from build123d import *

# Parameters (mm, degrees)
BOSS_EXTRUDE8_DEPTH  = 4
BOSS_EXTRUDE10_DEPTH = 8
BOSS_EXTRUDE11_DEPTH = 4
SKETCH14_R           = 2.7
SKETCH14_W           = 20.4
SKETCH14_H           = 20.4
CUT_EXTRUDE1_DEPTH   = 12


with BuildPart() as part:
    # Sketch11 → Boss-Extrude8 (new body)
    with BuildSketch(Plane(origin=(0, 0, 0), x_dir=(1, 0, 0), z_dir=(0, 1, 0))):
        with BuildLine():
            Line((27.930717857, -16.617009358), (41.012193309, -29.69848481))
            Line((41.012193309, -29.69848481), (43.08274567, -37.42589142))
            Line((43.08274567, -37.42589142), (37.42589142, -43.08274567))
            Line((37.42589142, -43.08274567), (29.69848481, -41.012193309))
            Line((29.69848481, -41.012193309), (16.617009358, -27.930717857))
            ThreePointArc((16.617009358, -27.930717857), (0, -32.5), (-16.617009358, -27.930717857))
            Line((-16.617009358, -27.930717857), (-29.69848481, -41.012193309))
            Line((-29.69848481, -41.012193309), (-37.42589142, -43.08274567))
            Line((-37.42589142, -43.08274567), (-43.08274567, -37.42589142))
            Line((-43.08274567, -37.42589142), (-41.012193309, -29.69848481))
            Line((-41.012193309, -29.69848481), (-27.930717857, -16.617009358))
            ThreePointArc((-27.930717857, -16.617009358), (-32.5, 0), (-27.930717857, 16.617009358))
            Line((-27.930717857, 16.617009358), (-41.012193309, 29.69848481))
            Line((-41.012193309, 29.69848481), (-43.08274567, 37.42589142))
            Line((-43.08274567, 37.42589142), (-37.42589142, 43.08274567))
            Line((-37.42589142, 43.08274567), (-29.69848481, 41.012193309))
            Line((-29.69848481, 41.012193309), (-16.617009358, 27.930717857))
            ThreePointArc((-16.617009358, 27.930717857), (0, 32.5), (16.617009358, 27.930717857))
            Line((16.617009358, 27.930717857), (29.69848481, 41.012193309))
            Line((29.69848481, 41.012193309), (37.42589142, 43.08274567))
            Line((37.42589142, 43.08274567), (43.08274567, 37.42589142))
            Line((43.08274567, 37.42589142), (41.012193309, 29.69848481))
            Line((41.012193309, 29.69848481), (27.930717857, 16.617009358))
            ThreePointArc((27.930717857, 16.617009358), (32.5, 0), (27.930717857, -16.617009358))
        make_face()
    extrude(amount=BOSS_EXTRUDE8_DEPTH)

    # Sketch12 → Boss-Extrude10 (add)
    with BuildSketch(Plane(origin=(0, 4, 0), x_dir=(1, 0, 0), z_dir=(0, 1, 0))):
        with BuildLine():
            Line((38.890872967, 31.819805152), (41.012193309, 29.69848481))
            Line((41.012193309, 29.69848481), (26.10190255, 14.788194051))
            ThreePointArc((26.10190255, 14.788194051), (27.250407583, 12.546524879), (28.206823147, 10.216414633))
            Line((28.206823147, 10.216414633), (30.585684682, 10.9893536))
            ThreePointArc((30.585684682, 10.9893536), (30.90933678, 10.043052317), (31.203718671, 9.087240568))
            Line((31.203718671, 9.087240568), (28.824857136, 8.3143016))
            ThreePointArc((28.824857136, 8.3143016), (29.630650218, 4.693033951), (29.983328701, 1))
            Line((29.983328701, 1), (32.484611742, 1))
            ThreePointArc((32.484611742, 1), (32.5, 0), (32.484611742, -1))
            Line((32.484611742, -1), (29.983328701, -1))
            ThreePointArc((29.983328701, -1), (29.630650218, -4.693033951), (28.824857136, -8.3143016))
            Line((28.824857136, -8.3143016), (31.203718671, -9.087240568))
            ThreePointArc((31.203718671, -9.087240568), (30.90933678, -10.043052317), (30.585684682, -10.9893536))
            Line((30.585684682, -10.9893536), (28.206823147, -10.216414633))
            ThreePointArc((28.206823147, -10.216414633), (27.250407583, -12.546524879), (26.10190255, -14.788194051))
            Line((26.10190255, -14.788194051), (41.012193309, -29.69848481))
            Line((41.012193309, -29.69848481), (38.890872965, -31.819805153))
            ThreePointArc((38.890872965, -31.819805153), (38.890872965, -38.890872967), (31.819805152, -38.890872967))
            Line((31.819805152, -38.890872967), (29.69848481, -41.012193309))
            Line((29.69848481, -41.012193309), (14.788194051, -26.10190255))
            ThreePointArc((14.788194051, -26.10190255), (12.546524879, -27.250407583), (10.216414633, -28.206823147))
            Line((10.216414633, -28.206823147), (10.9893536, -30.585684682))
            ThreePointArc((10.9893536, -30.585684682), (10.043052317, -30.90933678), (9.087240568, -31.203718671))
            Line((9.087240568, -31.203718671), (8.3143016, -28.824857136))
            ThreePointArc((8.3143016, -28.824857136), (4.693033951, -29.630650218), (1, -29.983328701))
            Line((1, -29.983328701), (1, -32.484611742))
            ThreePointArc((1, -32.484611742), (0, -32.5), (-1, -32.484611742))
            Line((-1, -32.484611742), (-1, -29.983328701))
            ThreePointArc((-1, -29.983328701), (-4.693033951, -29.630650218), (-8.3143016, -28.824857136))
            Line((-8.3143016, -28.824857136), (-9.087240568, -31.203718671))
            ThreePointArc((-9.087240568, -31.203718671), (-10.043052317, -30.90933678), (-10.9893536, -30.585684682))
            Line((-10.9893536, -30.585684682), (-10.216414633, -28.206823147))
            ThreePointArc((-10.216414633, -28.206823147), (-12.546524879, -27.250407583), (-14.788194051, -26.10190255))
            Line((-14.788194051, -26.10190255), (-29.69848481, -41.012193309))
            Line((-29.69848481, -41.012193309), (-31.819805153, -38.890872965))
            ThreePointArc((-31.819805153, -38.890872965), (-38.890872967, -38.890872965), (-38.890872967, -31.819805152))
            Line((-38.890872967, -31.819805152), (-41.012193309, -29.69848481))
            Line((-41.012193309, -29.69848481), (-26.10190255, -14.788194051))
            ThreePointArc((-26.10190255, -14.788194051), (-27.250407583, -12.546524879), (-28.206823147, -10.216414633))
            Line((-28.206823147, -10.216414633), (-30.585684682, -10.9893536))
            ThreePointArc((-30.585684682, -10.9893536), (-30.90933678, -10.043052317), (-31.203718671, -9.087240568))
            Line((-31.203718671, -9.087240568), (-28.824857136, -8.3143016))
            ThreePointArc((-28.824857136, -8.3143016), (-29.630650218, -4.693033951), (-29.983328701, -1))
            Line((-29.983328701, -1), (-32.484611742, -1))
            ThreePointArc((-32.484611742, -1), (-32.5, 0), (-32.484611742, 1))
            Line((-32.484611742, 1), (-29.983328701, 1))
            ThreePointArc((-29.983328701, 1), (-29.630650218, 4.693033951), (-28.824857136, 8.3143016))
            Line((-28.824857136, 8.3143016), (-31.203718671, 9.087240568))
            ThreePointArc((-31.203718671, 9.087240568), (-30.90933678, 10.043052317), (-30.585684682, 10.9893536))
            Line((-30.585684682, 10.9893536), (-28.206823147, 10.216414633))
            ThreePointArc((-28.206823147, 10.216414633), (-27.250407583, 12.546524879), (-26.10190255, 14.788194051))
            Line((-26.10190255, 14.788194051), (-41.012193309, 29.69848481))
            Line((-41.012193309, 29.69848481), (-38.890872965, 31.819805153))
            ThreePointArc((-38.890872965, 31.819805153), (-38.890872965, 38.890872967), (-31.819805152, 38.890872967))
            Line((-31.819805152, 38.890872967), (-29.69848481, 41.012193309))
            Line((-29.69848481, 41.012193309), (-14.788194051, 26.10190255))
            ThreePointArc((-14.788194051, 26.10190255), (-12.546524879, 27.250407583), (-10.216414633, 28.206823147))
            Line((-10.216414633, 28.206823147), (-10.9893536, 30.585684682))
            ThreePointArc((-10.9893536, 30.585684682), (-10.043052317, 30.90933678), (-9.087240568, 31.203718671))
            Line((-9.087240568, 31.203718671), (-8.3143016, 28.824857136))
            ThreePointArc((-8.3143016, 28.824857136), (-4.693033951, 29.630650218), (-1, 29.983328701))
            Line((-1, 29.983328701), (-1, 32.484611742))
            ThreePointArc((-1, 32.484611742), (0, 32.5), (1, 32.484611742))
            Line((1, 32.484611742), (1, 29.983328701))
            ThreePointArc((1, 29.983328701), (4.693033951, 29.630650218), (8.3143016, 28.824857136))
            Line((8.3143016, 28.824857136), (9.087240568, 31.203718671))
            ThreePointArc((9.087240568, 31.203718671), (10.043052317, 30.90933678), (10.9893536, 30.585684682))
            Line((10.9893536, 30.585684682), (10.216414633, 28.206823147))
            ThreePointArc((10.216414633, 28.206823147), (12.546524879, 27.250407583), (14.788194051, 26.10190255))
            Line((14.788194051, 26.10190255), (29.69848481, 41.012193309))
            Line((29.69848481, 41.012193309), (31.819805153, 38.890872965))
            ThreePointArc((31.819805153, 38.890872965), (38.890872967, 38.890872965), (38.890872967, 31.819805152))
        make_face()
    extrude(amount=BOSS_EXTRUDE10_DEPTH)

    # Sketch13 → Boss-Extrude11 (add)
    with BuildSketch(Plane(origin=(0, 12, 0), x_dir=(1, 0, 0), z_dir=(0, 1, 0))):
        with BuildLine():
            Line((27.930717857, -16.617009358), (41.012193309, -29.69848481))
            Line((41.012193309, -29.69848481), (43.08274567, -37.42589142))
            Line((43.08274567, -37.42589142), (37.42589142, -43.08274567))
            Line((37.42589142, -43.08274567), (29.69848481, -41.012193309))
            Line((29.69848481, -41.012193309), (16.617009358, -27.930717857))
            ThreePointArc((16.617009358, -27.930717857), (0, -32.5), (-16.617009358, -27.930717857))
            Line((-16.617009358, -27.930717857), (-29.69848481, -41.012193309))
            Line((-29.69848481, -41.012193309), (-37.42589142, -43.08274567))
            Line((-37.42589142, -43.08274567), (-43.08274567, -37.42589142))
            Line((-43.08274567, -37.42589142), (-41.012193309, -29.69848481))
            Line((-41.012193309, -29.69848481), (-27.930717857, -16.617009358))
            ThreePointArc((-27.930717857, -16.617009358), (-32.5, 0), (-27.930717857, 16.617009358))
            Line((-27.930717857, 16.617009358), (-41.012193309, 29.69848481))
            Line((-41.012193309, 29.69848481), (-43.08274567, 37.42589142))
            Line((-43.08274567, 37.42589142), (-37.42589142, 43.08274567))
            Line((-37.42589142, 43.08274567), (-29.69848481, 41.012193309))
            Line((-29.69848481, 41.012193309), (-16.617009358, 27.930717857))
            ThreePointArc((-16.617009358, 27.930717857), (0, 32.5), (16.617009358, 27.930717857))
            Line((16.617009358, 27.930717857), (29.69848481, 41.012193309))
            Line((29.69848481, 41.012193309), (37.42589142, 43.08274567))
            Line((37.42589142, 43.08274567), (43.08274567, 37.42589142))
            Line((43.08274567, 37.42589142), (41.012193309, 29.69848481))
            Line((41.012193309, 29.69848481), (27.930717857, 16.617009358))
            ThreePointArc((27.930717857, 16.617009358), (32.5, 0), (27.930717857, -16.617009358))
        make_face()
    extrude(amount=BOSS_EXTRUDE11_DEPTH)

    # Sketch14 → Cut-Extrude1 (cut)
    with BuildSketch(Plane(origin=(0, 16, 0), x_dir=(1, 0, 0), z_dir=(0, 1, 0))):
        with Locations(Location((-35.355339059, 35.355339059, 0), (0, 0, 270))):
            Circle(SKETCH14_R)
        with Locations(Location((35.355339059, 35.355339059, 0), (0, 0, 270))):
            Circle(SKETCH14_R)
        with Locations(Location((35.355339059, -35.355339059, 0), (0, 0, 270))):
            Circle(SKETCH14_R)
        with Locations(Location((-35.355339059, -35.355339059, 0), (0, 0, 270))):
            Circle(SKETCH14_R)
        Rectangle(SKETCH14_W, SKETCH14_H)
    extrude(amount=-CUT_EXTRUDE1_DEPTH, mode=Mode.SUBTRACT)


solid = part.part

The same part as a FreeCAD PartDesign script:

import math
import FreeCAD as App
import Part
import Sketcher

V = App.Vector
Q = App.Units.Quantity


def add_polygon(sketch, points):
    """Adds a closed chain of lines whose ends are joined by coincident constraints."""
    first, n = sketch.GeometryCount, len(points)
    for a, b in zip(points, points[1:] + points[:1]):
        sketch.addGeometry(Part.LineSegment(App.Vector(*a, 0), App.Vector(*b, 0)), False)
    for i in range(n):
        sketch.addConstraint(Sketcher.Constraint("Coincident", first + i, 2, first + (i + 1) % n, 1))

doc = App.newDocument("Part")
body = doc.addObject("PartDesign::Body", "Body")

# Sketch on XZ plane
sketch1 = doc.addObject("Sketcher::SketchObject", "Sketch")
body.addObject(sketch1)
sketch1.AttachmentSupport = (doc.XZ_Plane, [""])
sketch1.MapMode = "FlatFace"
sketch1.addGeometry([
    Part.LineSegment(V(41, 30, 0), V(28, 17, 0)),  # 0
    Part.ArcOfCircle(Part.Circle(V(0, 0, 0), V(0, 0, 1), 33), math.radians(-31), math.radians(31)),  # 1
    Part.LineSegment(V(28, -17, 0), V(41, -30, 0)),  # 2
    Part.LineSegment(V(41, -30, 0), V(43, -37, 0)),  # 3
    Part.LineSegment(V(43, -37, 0), V(37, -43, 0)),  # 4
    Part.LineSegment(V(37, -43, 0), V(30, -41, 0)),  # 5
    Part.LineSegment(V(30, -41, 0), V(17, -28, 0)),  # 6
    Part.ArcOfCircle(Part.Circle(V(0, 0, 0), V(0, 0, 1), 33), math.radians(-121), math.radians(-59)),  # 7
    Part.LineSegment(V(-17, -28, 0), V(-30, -41, 0)),  # 8
    Part.LineSegment(V(-30, -41, 0), V(-37, -43, 0)),  # 9
    Part.LineSegment(V(-37, -43, 0), V(-43, -37, 0)),  # 10
    Part.LineSegment(V(-43, -37, 0), V(-41, -30, 0)),  # 11
    Part.LineSegment(V(-41, -30, 0), V(-28, -17, 0)),  # 12
    Part.ArcOfCircle(Part.Circle(V(0, 0, 0), V(0, 0, 1), 33), math.radians(149), math.radians(211)),  # 13
    Part.LineSegment(V(-28, 17, 0), V(-41, 30, 0)),  # 14
    Part.LineSegment(V(-41, 30, 0), V(-43, 37, 0)),  # 15
    Part.LineSegment(V(-43, 37, 0), V(-37, 43, 0)),  # 16
    Part.LineSegment(V(-37, 43, 0), V(-30, 41, 0)),  # 17
    Part.LineSegment(V(-30, 41, 0), V(-17, 28, 0)),  # 18
    Part.ArcOfCircle(Part.Circle(V(0, 0, 0), V(0, 0, 1), 33), math.radians(59), math.radians(121)),  # 19
    Part.LineSegment(V(17, 28, 0), V(30, 41, 0)),  # 20
    Part.LineSegment(V(30, 41, 0), V(37, 43, 0)),  # 21
    Part.LineSegment(V(37, 43, 0), V(43, 37, 0)),  # 22
    Part.LineSegment(V(43, 37, 0), V(41, 30, 0)),  # 23
], False)
sketch1.addConstraint([
    Sketcher.Constraint("Coincident", 0, 2, 1, 2),
    Sketcher.Constraint("Coincident", 1, 1, 2, 1),
    Sketcher.Constraint("Coincident", 2, 2, 3, 1),
    Sketcher.Constraint("Coincident", 3, 2, 4, 1),
    Sketcher.Constraint("Coincident", 4, 2, 5, 1),
    Sketcher.Constraint("Coincident", 5, 2, 6, 1),
    Sketcher.Constraint("Coincident", 6, 2, 7, 2),
    Sketcher.Constraint("Coincident", 7, 1, 8, 1),
    Sketcher.Constraint("Coincident", 8, 2, 9, 1),
    Sketcher.Constraint("Coincident", 9, 2, 10, 1),
    Sketcher.Constraint("Coincident", 10, 2, 11, 1),
    Sketcher.Constraint("Coincident", 11, 2, 12, 1),
    Sketcher.Constraint("Coincident", 12, 2, 13, 2),
    Sketcher.Constraint("Coincident", 13, 1, 14, 1),
    Sketcher.Constraint("Coincident", 14, 2, 15, 1),
    Sketcher.Constraint("Coincident", 15, 2, 16, 1),
    Sketcher.Constraint("Coincident", 16, 2, 17, 1),
    Sketcher.Constraint("Coincident", 17, 2, 18, 1),
    Sketcher.Constraint("Coincident", 18, 2, 19, 2),
    Sketcher.Constraint("Coincident", 19, 1, 20, 1),
    Sketcher.Constraint("Coincident", 20, 2, 21, 1),
    Sketcher.Constraint("Coincident", 21, 2, 22, 1),
    Sketcher.Constraint("Coincident", 22, 2, 23, 1),
    Sketcher.Constraint("Coincident", 23, 2, 0, 1),
    Sketcher.Constraint("Coincident", 1, 3, -1, 1),
    Sketcher.Constraint("Coincident", 7, 3, -1, 1),
    Sketcher.Constraint("Coincident", 13, 3, -1, 1),
    Sketcher.Constraint("Coincident", 19, 3, -1, 1),
    Sketcher.Constraint("Equal", 1, 7),
    Sketcher.Constraint("Equal", 7, 13),
    Sketcher.Constraint("Equal", 13, 19),
    Sketcher.Constraint("Symmetric", 2, 2, 14, 2, -1, 1),
    Sketcher.Constraint("Symmetric", 3, 2, 15, 2, -1, 1),
    Sketcher.Constraint("Symmetric", 4, 2, 16, 2, -1, 1),
    Sketcher.Constraint("Symmetric", 5, 2, 17, 2, -1, 1),
    Sketcher.Constraint("Symmetric", 8, 2, 20, 2, -1, 1),
    Sketcher.Constraint("Symmetric", 9, 2, 21, 2, -1, 1),
    Sketcher.Constraint("Symmetric", 10, 2, 22, 2, -1, 1),
    Sketcher.Constraint("Symmetric", 11, 2, 23, 2, -1, 1),
    Sketcher.Constraint("Symmetric", 5, 2, 8, 2, -2),
    Sketcher.Constraint("Symmetric", 4, 2, 9, 2, -2),
    Sketcher.Constraint("Symmetric", 3, 2, 10, 2, -2),
    Sketcher.Constraint("Symmetric", 2, 2, 11, 2, -2),
    Sketcher.Constraint("Perpendicular", 0, 2),
    Sketcher.Constraint("Perpendicular", 2, 4),
    Sketcher.Constraint("Perpendicular", 4, 6),
    Sketcher.Constraint("Perpendicular", 6, 8),
    Sketcher.Constraint("Perpendicular", 3, 9),
    Sketcher.Constraint("Perpendicular", 8, 10),
    Sketcher.Constraint("Perpendicular", 10, 12),
    Sketcher.Constraint("Perpendicular", 12, 14),
    Sketcher.Constraint("Perpendicular", 16, 18),
    Sketcher.Constraint("Perpendicular", 18, 20),
    Sketcher.Constraint("Equal", 3, 4),
    Sketcher.Constraint("Equal", 4, 5),
    Sketcher.Constraint("Equal", 2, 6),
    Sketcher.Constraint("Radius", 1, 32.5),
    Sketcher.Constraint("Angle", 3, Q("-75 deg")),
    Sketcher.Constraint("Distance", 3, 8.0),
    Sketcher.Constraint("Distance", 0, 18.5),
])
pad1 = doc.addObject("PartDesign::Pad", "Pad")
body.addObject(pad1)
pad1.Profile = sketch1
pad1.Length = 4
pad1.Reversed = True

# Sketch on XZ plane
sketch2 = doc.addObject("Sketcher::SketchObject", "Sketch001")
body.addObject(sketch2)
sketch2.AttachmentSupport = (doc.XZ_Plane, [""])
sketch2.MapMode = "FlatFace"
sketch2.AttachmentOffset = App.Placement(V(0, 0, -4), App.Rotation())
sketch2.addGeometry([
    Part.LineSegment(V(41, -29.7, 0), V(38.9, -31.8, 0)),  # 0
    Part.ArcOfCircle(Part.Circle(V(35.4, -35.4, 0), V(0, 0, 1), 5), math.radians(-135), math.radians(45)),  # 1
    Part.LineSegment(V(31.8, -38.9, 0), V(29.7, -41, 0)),  # 2
    Part.LineSegment(V(29.7, -41, 0), V(14.8, -26.1, 0)),  # 3
    Part.ArcOfCircle(Part.Circle(V(0, 0, 0), V(0, 0, 1), 30), math.radians(-70.09), math.radians(-60.47)),  # 4
    Part.LineSegment(V(10.2, -28.2, 0), V(11, -30.6, 0)),  # 5
    Part.ArcOfCircle(Part.Circle(V(0, 0, 0), V(0, 0, 1), 32.5), math.radians(-73.76), math.radians(-70.24)),  # 6
    Part.LineSegment(V(9.1, -31.2, 0), V(8.3, -28.8, 0)),  # 7
    Part.ArcOfCircle(Part.Circle(V(0, 0, 0), V(0, 0, 1), 30), math.radians(-88.09), math.radians(-73.91)),  # 8
    Part.LineSegment(V(1, -30, 0), V(1, -32.5, 0)),  # 9
    Part.ArcOfCircle(Part.Circle(V(0, 0, 0), V(0, 0, 1), 32.5), math.radians(-91.76), math.radians(-88.24)),  # 10
    Part.LineSegment(V(-1, -32.5, 0), V(-1, -30, 0)),  # 11
    Part.ArcOfCircle(Part.Circle(V(0, 0, 0), V(0, 0, 1), 30), math.radians(-106.09), math.radians(-91.91)),  # 12
    Part.LineSegment(V(-8.3, -28.8, 0), V(-9.1, -31.2, 0)),  # 13
    Part.ArcOfCircle(Part.Circle(V(0, 0, 0), V(0, 0, 1), 32.5), math.radians(-109.76), math.radians(-106.24)),  # 14
    Part.LineSegment(V(-11, -30.6, 0), V(-10.2, -28.2, 0)),  # 15
    Part.ArcOfCircle(Part.Circle(V(0, 0, 0), V(0, 0, 1), 30), math.radians(-119.53), math.radians(-109.91)),  # 16
    Part.LineSegment(V(-14.8, -26.1, 0), V(-29.7, -41, 0)),  # 17
    Part.LineSegment(V(-29.7, -41, 0), V(-31.8, -38.9, 0)),  # 18
    Part.ArcOfCircle(Part.Circle(V(-35.4, -35.4, 0), V(0, 0, 1), 5), math.radians(135), math.radians(315)),  # 19
    Part.LineSegment(V(-38.9, -31.8, 0), V(-41, -29.7, 0)),  # 20
    Part.LineSegment(V(-41, -29.7, 0), V(-26.1, -14.8, 0)),  # 21
    Part.ArcOfCircle(Part.Circle(V(0, 0, 0), V(0, 0, 1), 30), math.radians(-160.09), math.radians(-150.47)),  # 22
    Part.LineSegment(V(-28.2, -10.2, 0), V(-30.6, -11, 0)),  # 23
    Part.ArcOfCircle(Part.Circle(V(0, 0, 0), V(0, 0, 1), 32.5), math.radians(-163.76), math.radians(-160.24)),  # 24
    Part.LineSegment(V(-31.2, -9.1, 0), V(-28.8, -8.3, 0)),  # 25
    Part.ArcOfCircle(Part.Circle(V(0, 0, 0), V(0, 0, 1), 30), math.radians(-178.09), math.radians(-163.91)),  # 26
    Part.LineSegment(V(-30, -1, 0), V(-32.5, -1, 0)),  # 27
    Part.ArcOfCircle(Part.Circle(V(0, 0, 0), V(0, 0, 1), 32.5), math.radians(178.24), math.radians(181.76)),  # 28
    Part.LineSegment(V(-32.5, 1, 0), V(-30, 1, 0)),  # 29
    Part.ArcOfCircle(Part.Circle(V(0, 0, 0), V(0, 0, 1), 30), math.radians(163.91), math.radians(178.09)),  # 30
    Part.LineSegment(V(-28.8, 8.3, 0), V(-31.2, 9.1, 0)),  # 31
    Part.ArcOfCircle(Part.Circle(V(0, 0, 0), V(0, 0, 1), 32.5), math.radians(160.24), math.radians(163.76)),  # 32
    Part.LineSegment(V(-30.6, 11, 0), V(-28.2, 10.2, 0)),  # 33
    Part.ArcOfCircle(Part.Circle(V(0, 0, 0), V(0, 0, 1), 30), math.radians(150.47), math.radians(160.09)),  # 34
    Part.LineSegment(V(-26.1, 14.8, 0), V(-41, 29.7, 0)),  # 35
    Part.LineSegment(V(-41, 29.7, 0), V(-38.9, 31.8, 0)),  # 36
    Part.ArcOfCircle(Part.Circle(V(-35.4, 35.4, 0), V(0, 0, 1), 5), math.radians(45), math.radians(225)),  # 37
    Part.LineSegment(V(-31.8, 38.9, 0), V(-29.7, 41, 0)),  # 38
    Part.LineSegment(V(-29.7, 41, 0), V(-14.8, 26.1, 0)),  # 39
    Part.ArcOfCircle(Part.Circle(V(0, 0, 0), V(0, 0, 1), 30), math.radians(109.91), math.radians(119.53)),  # 40
    Part.LineSegment(V(-10.2, 28.2, 0), V(-11, 30.6, 0)),  # 41
    Part.ArcOfCircle(Part.Circle(V(0, 0, 0), V(0, 0, 1), 32.5), math.radians(106.24), math.radians(109.76)),  # 42
    Part.LineSegment(V(-9.1, 31.2, 0), V(-8.3, 28.8, 0)),  # 43
    Part.ArcOfCircle(Part.Circle(V(0, 0, 0), V(0, 0, 1), 30), math.radians(91.91), math.radians(106.09)),  # 44
    Part.LineSegment(V(-1, 30, 0), V(-1, 32.5, 0)),  # 45
    Part.ArcOfCircle(Part.Circle(V(0, 0, 0), V(0, 0, 1), 32.5), math.radians(88.24), math.radians(91.76)),  # 46
    Part.LineSegment(V(1, 32.5, 0), V(1, 30, 0)),  # 47
    Part.ArcOfCircle(Part.Circle(V(0, 0, 0), V(0, 0, 1), 30), math.radians(73.91), math.radians(88.09)),  # 48
    Part.LineSegment(V(8.3, 28.8, 0), V(9.1, 31.2, 0)),  # 49
    Part.ArcOfCircle(Part.Circle(V(0, 0, 0), V(0, 0, 1), 32.5), math.radians(70.24), math.radians(73.76)),  # 50
    Part.LineSegment(V(11, 30.6, 0), V(10.2, 28.2, 0)),  # 51
    Part.ArcOfCircle(Part.Circle(V(0, 0, 0), V(0, 0, 1), 30), math.radians(60.47), math.radians(70.09)),  # 52
    Part.LineSegment(V(14.8, 26.1, 0), V(29.7, 41, 0)),  # 53
    Part.LineSegment(V(29.7, 41, 0), V(31.8, 38.9, 0)),  # 54
    Part.ArcOfCircle(Part.Circle(V(35.4, 35.4, 0), V(0, 0, 1), 5), math.radians(-45), math.radians(135)),  # 55
    Part.LineSegment(V(38.9, 31.8, 0), V(41, 29.7, 0)),  # 56
    Part.LineSegment(V(41, 29.7, 0), V(26.1, 14.8, 0)),  # 57
    Part.ArcOfCircle(Part.Circle(V(0, 0, 0), V(0, 0, 1), 30), math.radians(19.91), math.radians(29.53)),  # 58
    Part.LineSegment(V(28.2, 10.2, 0), V(30.6, 11, 0)),  # 59
    Part.ArcOfCircle(Part.Circle(V(0, 0, 0), V(0, 0, 1), 32.5), math.radians(16.24), math.radians(19.76)),  # 60
    Part.LineSegment(V(31.2, 9.1, 0), V(28.8, 8.3, 0)),  # 61
    Part.ArcOfCircle(Part.Circle(V(0, 0, 0), V(0, 0, 1), 30), math.radians(1.91), math.radians(16.09)),  # 62
    Part.LineSegment(V(30, 1, 0), V(32.5, 1, 0)),  # 63
    Part.ArcOfCircle(Part.Circle(V(0, 0, 0), V(0, 0, 1), 32.5), math.radians(-1.76), math.radians(1.76)),  # 64
    Part.LineSegment(V(32.5, -1, 0), V(30, -1, 0)),  # 65
    Part.ArcOfCircle(Part.Circle(V(0, 0, 0), V(0, 0, 1), 30), math.radians(-16.09), math.radians(-1.91)),  # 66
    Part.LineSegment(V(28.8, -8.3, 0), V(31.2, -9.1, 0)),  # 67
    Part.ArcOfCircle(Part.Circle(V(0, 0, 0), V(0, 0, 1), 32.5), math.radians(-19.76), math.radians(-16.24)),  # 68
    Part.LineSegment(V(30.6, -11, 0), V(28.2, -10.2, 0)),  # 69
    Part.ArcOfCircle(Part.Circle(V(0, 0, 0), V(0, 0, 1), 30), math.radians(-29.53), math.radians(-19.91)),  # 70
    Part.LineSegment(V(26.1, -14.8, 0), V(41, -29.7, 0)),  # 71
], False)
sketch2.addConstraint([
    Sketcher.Constraint("Coincident", 0, 2, 1, 2),
    Sketcher.Constraint("Coincident", 1, 1, 2, 1),
    Sketcher.Constraint("Coincident", 2, 2, 3, 1),
    Sketcher.Constraint("Coincident", 3, 2, 4, 2),
    Sketcher.Constraint("Coincident", 4, 1, 5, 1),
    Sketcher.Constraint("Coincident", 5, 2, 6, 2),
    Sketcher.Constraint("Coincident", 6, 1, 7, 1),
    Sketcher.Constraint("Coincident", 7, 2, 8, 2),
    Sketcher.Constraint("Coincident", 8, 1, 9, 1),
    Sketcher.Constraint("Coincident", 9, 2, 10, 2),
    Sketcher.Constraint("Coincident", 10, 1, 11, 1),
    Sketcher.Constraint("Coincident", 11, 2, 12, 2),
    Sketcher.Constraint("Coincident", 12, 1, 13, 1),
    Sketcher.Constraint("Coincident", 13, 2, 14, 2),
    Sketcher.Constraint("Coincident", 14, 1, 15, 1),
    Sketcher.Constraint("Coincident", 15, 2, 16, 2),
    Sketcher.Constraint("Coincident", 16, 1, 17, 1),
    Sketcher.Constraint("Coincident", 17, 2, 18, 1),
    Sketcher.Constraint("Coincident", 18, 2, 19, 2),
    Sketcher.Constraint("Coincident", 19, 1, 20, 1),
    Sketcher.Constraint("Coincident", 20, 2, 21, 1),
    Sketcher.Constraint("Coincident", 21, 2, 22, 2),
    Sketcher.Constraint("Coincident", 22, 1, 23, 1),
    Sketcher.Constraint("Coincident", 23, 2, 24, 2),
    Sketcher.Constraint("Coincident", 24, 1, 25, 1),
    Sketcher.Constraint("Coincident", 25, 2, 26, 2),
    Sketcher.Constraint("Coincident", 26, 1, 27, 1),
    Sketcher.Constraint("Coincident", 27, 2, 28, 2),
    Sketcher.Constraint("Coincident", 28, 1, 29, 1),
    Sketcher.Constraint("Coincident", 29, 2, 30, 2),
    Sketcher.Constraint("Coincident", 30, 1, 31, 1),
    Sketcher.Constraint("Coincident", 31, 2, 32, 2),
    Sketcher.Constraint("Coincident", 32, 1, 33, 1),
    Sketcher.Constraint("Coincident", 33, 2, 34, 2),
    Sketcher.Constraint("Coincident", 34, 1, 35, 1),
    Sketcher.Constraint("Coincident", 35, 2, 36, 1),
    Sketcher.Constraint("Coincident", 36, 2, 37, 2),
    Sketcher.Constraint("Coincident", 37, 1, 38, 1),
    Sketcher.Constraint("Coincident", 38, 2, 39, 1),
    Sketcher.Constraint("Coincident", 39, 2, 40, 2),
    Sketcher.Constraint("Coincident", 40, 1, 41, 1),
    Sketcher.Constraint("Coincident", 41, 2, 42, 2),
    Sketcher.Constraint("Coincident", 42, 1, 43, 1),
    Sketcher.Constraint("Coincident", 43, 2, 44, 2),
    Sketcher.Constraint("Coincident", 44, 1, 45, 1),
    Sketcher.Constraint("Coincident", 45, 2, 46, 2),
    Sketcher.Constraint("Coincident", 46, 1, 47, 1),
    Sketcher.Constraint("Coincident", 47, 2, 48, 2),
    Sketcher.Constraint("Coincident", 48, 1, 49, 1),
    Sketcher.Constraint("Coincident", 49, 2, 50, 2),
    Sketcher.Constraint("Coincident", 50, 1, 51, 1),
    Sketcher.Constraint("Coincident", 51, 2, 52, 2),
    Sketcher.Constraint("Coincident", 52, 1, 53, 1),
    Sketcher.Constraint("Coincident", 53, 2, 54, 1),
    Sketcher.Constraint("Coincident", 54, 2, 55, 2),
    Sketcher.Constraint("Coincident", 55, 1, 56, 1),
    Sketcher.Constraint("Coincident", 56, 2, 57, 1),
    Sketcher.Constraint("Coincident", 57, 2, 58, 2),
    Sketcher.Constraint("Coincident", 58, 1, 59, 1),
    Sketcher.Constraint("Coincident", 59, 2, 60, 2),
    Sketcher.Constraint("Coincident", 60, 1, 61, 1),
    Sketcher.Constraint("Coincident", 61, 2, 62, 2),
    Sketcher.Constraint("Coincident", 62, 1, 63, 1),
    Sketcher.Constraint("Coincident", 63, 2, 64, 2),
    Sketcher.Constraint("Coincident", 64, 1, 65, 1),
    Sketcher.Constraint("Coincident", 65, 2, 66, 2),
    Sketcher.Constraint("Coincident", 66, 1, 67, 1),
    Sketcher.Constraint("Coincident", 67, 2, 68, 2),
    Sketcher.Constraint("Coincident", 68, 1, 69, 1),
    Sketcher.Constraint("Coincident", 69, 2, 70, 2),
    Sketcher.Constraint("Coincident", 70, 1, 71, 1),
    Sketcher.Constraint("Coincident", 71, 2, 0, 1),
    Sketcher.Constraint("Vertical", 9),
    Sketcher.Constraint("Vertical", 11),
    Sketcher.Constraint("Horizontal", 27),
    Sketcher.Constraint("Horizontal", 29),
    Sketcher.Constraint("Vertical", 45),
    Sketcher.Constraint("Vertical", 47),
    Sketcher.Constraint("Horizontal", 63),
    Sketcher.Constraint("Horizontal", 65),
    Sketcher.Constraint("Coincident", 4, 3, -1, 1),
    Sketcher.Constraint("Coincident", 6, 3, -1, 1),
    Sketcher.Constraint("Coincident", 8, 3, -1, 1),
    Sketcher.Constraint("Coincident", 10, 3, -1, 1),
    Sketcher.Constraint("Coincident", 12, 3, -1, 1),
    Sketcher.Constraint("Coincident", 14, 3, -1, 1),
    Sketcher.Constraint("Coincident", 16, 3, -1, 1),
    Sketcher.Constraint("Coincident", 22, 3, -1, 1),
    Sketcher.Constraint("Coincident", 24, 3, -1, 1),
    Sketcher.Constraint("Coincident", 26, 3, -1, 1),
    Sketcher.Constraint("Coincident", 28, 3, -1, 1),
    Sketcher.Constraint("Coincident", 30, 3, -1, 1),
    Sketcher.Constraint("Coincident", 32, 3, -1, 1),
    Sketcher.Constraint("Coincident", 34, 3, -1, 1),
    Sketcher.Constraint("Coincident", 40, 3, -1, 1),
    Sketcher.Constraint("Coincident", 42, 3, -1, 1),
    Sketcher.Constraint("Coincident", 44, 3, -1, 1),
    Sketcher.Constraint("Coincident", 46, 3, -1, 1),
    Sketcher.Constraint("Coincident", 48, 3, -1, 1),
    Sketcher.Constraint("Coincident", 50, 3, -1, 1),
    Sketcher.Constraint("Coincident", 52, 3, -1, 1),
    Sketcher.Constraint("Coincident", 58, 3, -1, 1),
    Sketcher.Constraint("Coincident", 60, 3, -1, 1),
    Sketcher.Constraint("Coincident", 62, 3, -1, 1),
    Sketcher.Constraint("Coincident", 64, 3, -1, 1),
    Sketcher.Constraint("Coincident", 66, 3, -1, 1),
    Sketcher.Constraint("Coincident", 68, 3, -1, 1),
    Sketcher.Constraint("Coincident", 70, 3, -1, 1),
    Sketcher.Constraint("Equal", 4, 8),
    Sketcher.Constraint("Equal", 6, 10),
    Sketcher.Constraint("Equal", 8, 12),
    Sketcher.Constraint("Equal", 10, 14),
    Sketcher.Constraint("Equal", 12, 16),
    Sketcher.Constraint("Equal", 1, 19),
    Sketcher.Constraint("Equal", 16, 22),
    Sketcher.Constraint("Equal", 14, 24),
    Sketcher.Constraint("Equal", 22, 26),
    Sketcher.Constraint("Equal", 24, 28),
    Sketcher.Constraint("Equal", 26, 30),
    Sketcher.Constraint("Equal", 28, 32),
    Sketcher.Constraint("Equal", 30, 34),
    Sketcher.Constraint("Equal", 19, 37),
    Sketcher.Constraint("Equal", 34, 40),
    Sketcher.Constraint("Equal", 32, 42),
    Sketcher.Constraint("Equal", 40, 44),
    Sketcher.Constraint("Equal", 42, 46),
    Sketcher.Constraint("Equal", 44, 48),
    Sketcher.Constraint("Equal", 46, 50),
    Sketcher.Constraint("Equal", 48, 52),
    Sketcher.Constraint("Equal", 37, 55),
    Sketcher.Constraint("Equal", 52, 58),
    Sketcher.Constraint("Equal", 50, 60),
    Sketcher.Constraint("Equal", 58, 62),
    Sketcher.Constraint("Equal", 60, 64),
    Sketcher.Constraint("Equal", 62, 66),
    Sketcher.Constraint("Equal", 64, 68),
    Sketcher.Constraint("Equal", 66, 70),
    Sketcher.Constraint("Symmetric", 1, 3, 37, 3, -1, 1),
    Sketcher.Constraint("Symmetric", 19, 3, 55, 3, -1, 1),
    Sketcher.Constraint("Symmetric", 2, 2, 38, 2, -1, 1),
    Sketcher.Constraint("Symmetric", 17, 2, 53, 2, -1, 1),
    Sketcher.Constraint("Symmetric", 20, 2, 56, 2, -1, 1),
    Sketcher.Constraint("Symmetric", 35, 2, 71, 2, -1, 1),
    Sketcher.Constraint("Symmetric", 1, 3, 19, 3, -2),
    Sketcher.Constraint("Symmetric", 2, 2, 17, 2, -2),
    Sketcher.Constraint("Symmetric", 35, 2, 56, 2, -2),
    Sketcher.Constraint("Parallel", 0, 2),
    Sketcher.Constraint("Perpendicular", 2, 3),
    Sketcher.Constraint("Parallel", 5, 7),
    Sketcher.Constraint("Parallel", 13, 15),
    Sketcher.Constraint("Perpendicular", 3, 17),
    Sketcher.Constraint("Perpendicular", 17, 18),
    Sketcher.Constraint("Parallel", 18, 20),
    Sketcher.Constraint("Perpendicular", 20, 21),
    Sketcher.Constraint("Perpendicular", 7, 23),
    Sketcher.Constraint("Parallel", 23, 25),
    Sketcher.Constraint("Perpendicular", 15, 31),
    Sketcher.Constraint("Parallel", 31, 33),
    Sketcher.Constraint("Perpendicular", 21, 35),
    Sketcher.Constraint("Perpendicular", 35, 36),
    Sketcher.Constraint("Parallel", 36, 38),
    Sketcher.Constraint("Perpendicular", 38, 39),
    Sketcher.Constraint("Perpendicular", 25, 41),
    Sketcher.Constraint("Parallel", 41, 43),
    Sketcher.Constraint("Perpendicular", 33, 49),
    Sketcher.Constraint("Parallel", 49, 51),
    Sketcher.Constraint("Perpendicular", 39, 53),
    Sketcher.Constraint("Perpendicular", 53, 54),
    Sketcher.Constraint("Parallel", 54, 56),
    Sketcher.Constraint("Perpendicular", 56, 57),
    Sketcher.Constraint("Perpendicular", 43, 59),
    Sketcher.Constraint("Parallel", 59, 61),
    Sketcher.Constraint("Perpendicular", 51, 67),
    Sketcher.Constraint("Parallel", 67, 69),
    Sketcher.Constraint("Perpendicular", 57, 71),
    Sketcher.Constraint("Horizontal", 9, 2, 10, 1),
    Sketcher.Constraint("Horizontal", 7, 2, 12, 1),
    Sketcher.Constraint("Horizontal", 6, 1, 13, 2),
    Sketcher.Constraint("Horizontal", 5, 2, 14, 1),
    Sketcher.Constraint("Horizontal", 3, 2, 16, 1),
    Sketcher.Constraint("Horizontal", 45, 2, 46, 1),
    Sketcher.Constraint("Horizontal", 43, 2, 48, 1),
    Sketcher.Constraint("Horizontal", 41, 2, 50, 1),
    Sketcher.Constraint("Horizontal", 33, 2, 58, 1),
    Sketcher.Constraint("Horizontal", 31, 2, 60, 1),
    Sketcher.Constraint("Horizontal", 29, 2, 62, 1),
    Sketcher.Constraint("Horizontal", 27, 2, 64, 1),
    Sketcher.Constraint("Horizontal", 25, 2, 66, 1),
    Sketcher.Constraint("Horizontal", 23, 2, 68, 1),
    Sketcher.Constraint("Vertical", 27, 2, 28, 1),
    Sketcher.Constraint("Vertical", 25, 2, 30, 1),
    Sketcher.Constraint("Vertical", 23, 2, 32, 1),
    Sketcher.Constraint("Vertical", 15, 2, 40, 1),
    Sketcher.Constraint("Vertical", 13, 2, 42, 1),
    Sketcher.Constraint("Vertical", 11, 2, 44, 1),
    Sketcher.Constraint("Equal", 0, 2),
    Sketcher.Constraint("Equal", 5, 7),
    Sketcher.Constraint("Equal", 17, 21),
    Sketcher.Constraint("Radius", 1, 5.0),
    Sketcher.Constraint("Radius", 4, 30.0),
    Sketcher.Constraint("Radius", 6, 32.5),
    Sketcher.Constraint("Angle", 5, Q("-72 deg")),
    Sketcher.Constraint("Distance", 0, 3.0),
    Sketcher.Constraint("DistanceX", -1, 1, 8, 1, 1.0),
    Sketcher.Constraint("DistanceY", 26, 1, -1, 1, 1.0),
    Sketcher.Constraint("DistanceX", -1, 1, 7, 2, 8.314302),
    Sketcher.Constraint("DistanceY", 25, 2, -1, 1, 8.314302),
    Sketcher.Constraint("DistanceX", -1, 1, 1, 3, 35.355339),
    Sketcher.Constraint("DistanceY", 1, 3, -1, 1, 35.355339),
    Sketcher.Constraint("Distance", 3, 21.086335),
    Sketcher.Constraint("DistanceX", 22, 1, -1, 1, 28.206823),
])
pad2 = doc.addObject("PartDesign::Pad", "Pad001")
body.addObject(pad2)
pad2.Profile = sketch2
pad2.Length = 8
pad2.Reversed = True

# Sketch on XZ plane
sketch3 = doc.addObject("Sketcher::SketchObject", "Sketch002")
body.addObject(sketch3)
sketch3.AttachmentSupport = (doc.XZ_Plane, [""])
sketch3.MapMode = "FlatFace"
sketch3.AttachmentOffset = App.Placement(V(0, 0, -12), App.Rotation())
sketch3.addGeometry([
    Part.LineSegment(V(41, 30, 0), V(28, 17, 0)),  # 0
    Part.ArcOfCircle(Part.Circle(V(0, 0, 0), V(0, 0, 1), 33), math.radians(-31), math.radians(31)),  # 1
    Part.LineSegment(V(28, -17, 0), V(41, -30, 0)),  # 2
    Part.LineSegment(V(41, -30, 0), V(43, -37, 0)),  # 3
    Part.LineSegment(V(43, -37, 0), V(37, -43, 0)),  # 4
    Part.LineSegment(V(37, -43, 0), V(30, -41, 0)),  # 5
    Part.LineSegment(V(30, -41, 0), V(17, -28, 0)),  # 6
    Part.ArcOfCircle(Part.Circle(V(0, 0, 0), V(0, 0, 1), 33), math.radians(-121), math.radians(-59)),  # 7
    Part.LineSegment(V(-17, -28, 0), V(-30, -41, 0)),  # 8
    Part.LineSegment(V(-30, -41, 0), V(-37, -43, 0)),  # 9
    Part.LineSegment(V(-37, -43, 0), V(-43, -37, 0)),  # 10
    Part.LineSegment(V(-43, -37, 0), V(-41, -30, 0)),  # 11
    Part.LineSegment(V(-41, -30, 0), V(-28, -17, 0)),  # 12
    Part.ArcOfCircle(Part.Circle(V(0, 0, 0), V(0, 0, 1), 33), math.radians(149), math.radians(211)),  # 13
    Part.LineSegment(V(-28, 17, 0), V(-41, 30, 0)),  # 14
    Part.LineSegment(V(-41, 30, 0), V(-43, 37, 0)),  # 15
    Part.LineSegment(V(-43, 37, 0), V(-37, 43, 0)),  # 16
    Part.LineSegment(V(-37, 43, 0), V(-30, 41, 0)),  # 17
    Part.LineSegment(V(-30, 41, 0), V(-17, 28, 0)),  # 18
    Part.ArcOfCircle(Part.Circle(V(0, 0, 0), V(0, 0, 1), 33), math.radians(59), math.radians(121)),  # 19
    Part.LineSegment(V(17, 28, 0), V(30, 41, 0)),  # 20
    Part.LineSegment(V(30, 41, 0), V(37, 43, 0)),  # 21
    Part.LineSegment(V(37, 43, 0), V(43, 37, 0)),  # 22
    Part.LineSegment(V(43, 37, 0), V(41, 30, 0)),  # 23
], False)
sketch3.addConstraint([
    Sketcher.Constraint("Coincident", 0, 2, 1, 2),
    Sketcher.Constraint("Coincident", 1, 1, 2, 1),
    Sketcher.Constraint("Coincident", 2, 2, 3, 1),
    Sketcher.Constraint("Coincident", 3, 2, 4, 1),
    Sketcher.Constraint("Coincident", 4, 2, 5, 1),
    Sketcher.Constraint("Coincident", 5, 2, 6, 1),
    Sketcher.Constraint("Coincident", 6, 2, 7, 2),
    Sketcher.Constraint("Coincident", 7, 1, 8, 1),
    Sketcher.Constraint("Coincident", 8, 2, 9, 1),
    Sketcher.Constraint("Coincident", 9, 2, 10, 1),
    Sketcher.Constraint("Coincident", 10, 2, 11, 1),
    Sketcher.Constraint("Coincident", 11, 2, 12, 1),
    Sketcher.Constraint("Coincident", 12, 2, 13, 2),
    Sketcher.Constraint("Coincident", 13, 1, 14, 1),
    Sketcher.Constraint("Coincident", 14, 2, 15, 1),
    Sketcher.Constraint("Coincident", 15, 2, 16, 1),
    Sketcher.Constraint("Coincident", 16, 2, 17, 1),
    Sketcher.Constraint("Coincident", 17, 2, 18, 1),
    Sketcher.Constraint("Coincident", 18, 2, 19, 2),
    Sketcher.Constraint("Coincident", 19, 1, 20, 1),
    Sketcher.Constraint("Coincident", 20, 2, 21, 1),
    Sketcher.Constraint("Coincident", 21, 2, 22, 1),
    Sketcher.Constraint("Coincident", 22, 2, 23, 1),
    Sketcher.Constraint("Coincident", 23, 2, 0, 1),
    Sketcher.Constraint("Coincident", 1, 3, -1, 1),
    Sketcher.Constraint("Coincident", 7, 3, -1, 1),
    Sketcher.Constraint("Coincident", 13, 3, -1, 1),
    Sketcher.Constraint("Coincident", 19, 3, -1, 1),
    Sketcher.Constraint("Equal", 1, 7),
    Sketcher.Constraint("Equal", 7, 13),
    Sketcher.Constraint("Equal", 13, 19),
    Sketcher.Constraint("Symmetric", 2, 2, 14, 2, -1, 1),
    Sketcher.Constraint("Symmetric", 3, 2, 15, 2, -1, 1),
    Sketcher.Constraint("Symmetric", 4, 2, 16, 2, -1, 1),
    Sketcher.Constraint("Symmetric", 5, 2, 17, 2, -1, 1),
    Sketcher.Constraint("Symmetric", 8, 2, 20, 2, -1, 1),
    Sketcher.Constraint("Symmetric", 9, 2, 21, 2, -1, 1),
    Sketcher.Constraint("Symmetric", 10, 2, 22, 2, -1, 1),
    Sketcher.Constraint("Symmetric", 11, 2, 23, 2, -1, 1),
    Sketcher.Constraint("Symmetric", 5, 2, 8, 2, -2),
    Sketcher.Constraint("Symmetric", 4, 2, 9, 2, -2),
    Sketcher.Constraint("Symmetric", 3, 2, 10, 2, -2),
    Sketcher.Constraint("Symmetric", 2, 2, 11, 2, -2),
    Sketcher.Constraint("Perpendicular", 0, 2),
    Sketcher.Constraint("Perpendicular", 2, 4),
    Sketcher.Constraint("Perpendicular", 4, 6),
    Sketcher.Constraint("Perpendicular", 6, 8),
    Sketcher.Constraint("Perpendicular", 3, 9),
    Sketcher.Constraint("Perpendicular", 8, 10),
    Sketcher.Constraint("Perpendicular", 10, 12),
    Sketcher.Constraint("Perpendicular", 12, 14),
    Sketcher.Constraint("Perpendicular", 16, 18),
    Sketcher.Constraint("Perpendicular", 18, 20),
    Sketcher.Constraint("Equal", 3, 4),
    Sketcher.Constraint("Equal", 4, 5),
    Sketcher.Constraint("Equal", 2, 6),
    Sketcher.Constraint("Radius", 1, 32.5),
    Sketcher.Constraint("Angle", 3, Q("-75 deg")),
    Sketcher.Constraint("Distance", 3, 8.0),
    Sketcher.Constraint("Distance", 0, 18.5),
])
pad3 = doc.addObject("PartDesign::Pad", "Pad002")
body.addObject(pad3)
pad3.Profile = sketch3
pad3.Length = 4
pad3.Reversed = True

# Sketch on XZ plane
sketch4 = doc.addObject("Sketcher::SketchObject", "Sketch003")
body.addObject(sketch4)
sketch4.AttachmentSupport = (doc.XZ_Plane, [""])
sketch4.MapMode = "FlatFace"
sketch4.AttachmentOffset = App.Placement(V(0, 0, -16), App.Rotation())
sketch4.addGeometry(Part.Circle(V(-35.4, -35.4, 0), V(0, 0, 1), 2.7), False)  # 0
sketch4.addGeometry(Part.Circle(V(35.4, -35.4, 0), V(0, 0, 1), 2.7), False)  # 1
sketch4.addGeometry(Part.Circle(V(35.4, 35.4, 0), V(0, 0, 1), 2.7), False)  # 2
sketch4.addGeometry(Part.Circle(V(-35.4, 35.4, 0), V(0, 0, 1), 2.7), False)  # 3
add_polygon(sketch4, [(-10.2, -10.2), (-10.2, 10.2), (10.2, 10.2), (10.2, -10.2)])  # lines 4-7
sketch4.addConstraint([
    Sketcher.Constraint("Vertical", 4),
    Sketcher.Constraint("Horizontal", 5),
    Sketcher.Constraint("Vertical", 6),
    Sketcher.Constraint("Horizontal", 7),
    Sketcher.Constraint("Equal", 0, 1),
    Sketcher.Constraint("Equal", 1, 2),
    Sketcher.Constraint("Equal", 2, 3),
    Sketcher.Constraint("Symmetric", 0, 3, 2, 3, -1, 1),
    Sketcher.Constraint("Symmetric", 1, 3, 3, 3, -1, 1),
    Sketcher.Constraint("Symmetric", 4, 2, 6, 2, -1, 1),
    Sketcher.Constraint("Symmetric", 0, 3, 1, 3, -2),
    Sketcher.Constraint("Equal", 7, 4),
    Sketcher.Constraint("Diameter", 0, 5.4),
    Sketcher.Constraint("DistanceX", 5, 1, 5, 2, 20.4),
    Sketcher.Constraint("DistanceX", 0, 3, -1, 1, 35.355339),
    Sketcher.Constraint("DistanceY", 0, 3, -1, 1, 35.355339),
])
pocket1 = doc.addObject("PartDesign::Pocket", "Pocket")
body.addObject(pocket1)
pocket1.Profile = sketch4
pocket1.Length = 12
pocket1.Reversed = True

doc.recompute()
